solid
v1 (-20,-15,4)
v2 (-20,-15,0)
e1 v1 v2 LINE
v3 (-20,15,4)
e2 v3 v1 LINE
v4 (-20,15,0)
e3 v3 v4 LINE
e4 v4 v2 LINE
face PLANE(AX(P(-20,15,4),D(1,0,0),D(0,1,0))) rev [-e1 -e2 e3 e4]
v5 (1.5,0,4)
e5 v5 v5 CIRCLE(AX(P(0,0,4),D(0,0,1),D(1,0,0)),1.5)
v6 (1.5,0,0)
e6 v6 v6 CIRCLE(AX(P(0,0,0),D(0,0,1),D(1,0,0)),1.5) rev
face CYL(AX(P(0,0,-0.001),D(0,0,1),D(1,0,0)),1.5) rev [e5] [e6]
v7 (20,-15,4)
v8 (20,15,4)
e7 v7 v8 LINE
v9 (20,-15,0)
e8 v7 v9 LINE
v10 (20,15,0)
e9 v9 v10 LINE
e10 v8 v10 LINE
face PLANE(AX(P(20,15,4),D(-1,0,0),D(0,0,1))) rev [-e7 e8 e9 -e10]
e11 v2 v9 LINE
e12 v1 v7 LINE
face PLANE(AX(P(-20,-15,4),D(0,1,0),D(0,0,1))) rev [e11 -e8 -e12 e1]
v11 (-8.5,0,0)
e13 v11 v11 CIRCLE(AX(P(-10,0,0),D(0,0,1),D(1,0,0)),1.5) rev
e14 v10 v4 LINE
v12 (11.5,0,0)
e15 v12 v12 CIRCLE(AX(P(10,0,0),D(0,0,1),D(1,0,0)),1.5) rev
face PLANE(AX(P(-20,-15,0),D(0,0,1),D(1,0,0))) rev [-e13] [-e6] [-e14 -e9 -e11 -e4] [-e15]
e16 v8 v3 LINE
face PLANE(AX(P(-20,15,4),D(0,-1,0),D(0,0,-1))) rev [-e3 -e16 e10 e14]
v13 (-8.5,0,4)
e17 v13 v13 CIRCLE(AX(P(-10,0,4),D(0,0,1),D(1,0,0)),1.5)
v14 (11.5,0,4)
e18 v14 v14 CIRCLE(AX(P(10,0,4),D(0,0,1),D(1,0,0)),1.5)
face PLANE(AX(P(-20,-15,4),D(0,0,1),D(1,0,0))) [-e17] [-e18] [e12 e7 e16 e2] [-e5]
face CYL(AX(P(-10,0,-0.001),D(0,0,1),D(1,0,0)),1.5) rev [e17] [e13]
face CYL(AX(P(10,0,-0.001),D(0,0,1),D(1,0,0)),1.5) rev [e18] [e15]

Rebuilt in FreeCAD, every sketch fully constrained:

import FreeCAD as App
import Part
import Sketcher
from FreeCAD import Vector
Q = App.Units.Quantity

doc = App.newDocument("Part")
body = doc.addObject("PartDesign::Body", "Body")

# Sketch on XY plane
sketch1 = doc.addObject("Sketcher::SketchObject", "Sketch")
body.addObject(sketch1)
sketch1.AttachmentSupport = (doc.XY_Plane, [""])
sketch1.MapMode = "FlatFace"
sketch1.addGeometry(Part.LineSegment(Vector(-20, 15, 0), Vector(-20, -15, 0)), False)
sketch1.addGeometry(Part.LineSegment(Vector(-20, -15, 0), Vector(20, -15, 0)), False)
sketch1.addGeometry(Part.LineSegment(Vector(20, -15, 0), Vector(20, 15, 0)), False)
sketch1.addGeometry(Part.LineSegment(Vector(20, 15, 0), Vector(-20, 15, 0)), False)
sketch1.addConstraint(Sketcher.Constraint("Coincident", 0, 2, 1, 1))
sketch1.addConstraint(Sketcher.Constraint("Coincident", 1, 2, 2, 1))
sketch1.addConstraint(Sketcher.Constraint("Coincident", 2, 2, 3, 1))
sketch1.addConstraint(Sketcher.Constraint("Coincident", 3, 2, 0, 1))
sketch1.addConstraint(Sketcher.Constraint("Vertical", 0))
sketch1.addConstraint(Sketcher.Constraint("Horizontal", 1))
sketch1.addConstraint(Sketcher.Constraint("Vertical", 2))
sketch1.addConstraint(Sketcher.Constraint("Horizontal", 3))
sketch1.addConstraint(Sketcher.Constraint("Symmetric", 0, 2, 2, 2, -1, 1))
sketch1.addConstraint(Sketcher.Constraint("DistanceX", 1, 1, 1, 2, Q("40 mm")))
sketch1.addConstraint(Sketcher.Constraint("DistanceY", 0, 2, 0, 1, Q("30 mm")))
pad1 = doc.addObject("PartDesign::Pad", "Pad")
body.addObject(pad1)
pad1.Profile = sketch1
pad1.Length = 4

# Sketch on XY plane
sketch2 = doc.addObject("Sketcher::SketchObject", "Sketch001")
body.addObject(sketch2)
sketch2.AttachmentSupport = (doc.XY_Plane, [""])
sketch2.MapMode = "FlatFace"
sketch2.AttachmentOffset = App.Placement(Vector(0, 0, 4), App.Rotation())
sketch2.addGeometry(Part.Circle(Vector(0, 0, 0), Vector(0, 0, 1), 1.5), False)
sketch2.addConstraint(Sketcher.Constraint("Coincident", 0, 3, -1, 1))
sketch2.addConstraint(Sketcher.Constraint("Diameter", 0, Q("3 mm")))
pocket1 = doc.addObject("PartDesign::Pocket", "Pocket")
body.addObject(pocket1)
pocket1.Profile = sketch2
pocket1.Type = "UpToFirst"

# Sketch on XY plane
sketch3 = doc.addObject("Sketcher::SketchObject", "Sketch002")
body.addObject(sketch3)
sketch3.AttachmentSupport = (doc.XY_Plane, [""])
sketch3.MapMode = "FlatFace"
sketch3.AttachmentOffset = App.Placement(Vector(0, 0, 4), App.Rotation())
sketch3.addGeometry(Part.Circle(Vector(-10, 0, 0), Vector(0, 0, 1), 1.5), False)
sketch3.addConstraint(Sketcher.Constraint("PointOnObject", 0, 3, -1))
sketch3.addConstraint(Sketcher.Constraint("Diameter", 0, Q("3 mm")))
sketch3.addConstraint(Sketcher.Constraint("DistanceX", 0, 3, -1, 1, Q("10 mm")))
pocket2 = doc.addObject("PartDesign::Pocket", "Pocket001")
body.addObject(pocket2)
pocket2.Profile = sketch3
pocket2.Type = "UpToFirst"

# Sketch on XY plane
sketch4 = doc.addObject("Sketcher::SketchObject", "Sketch003")
body.addObject(sketch4)
sketch4.AttachmentSupport = (doc.XY_Plane, [""])
sketch4.MapMode = "FlatFace"
sketch4.AttachmentOffset = App.Placement(Vector(0, 0, 4), App.Rotation())
sketch4.addGeometry(Part.Circle(Vector(10, 0, 0), Vector(0, 0, 1), 1.5), False)
sketch4.addConstraint(Sketcher.Constraint("PointOnObject", 0, 3, -1))
sketch4.addConstraint(Sketcher.Constraint("Diameter", 0, Q("3 mm")))
sketch4.addConstraint(Sketcher.Constraint("DistanceX", -1, 1, 0, 3, Q("10 mm")))
pocket3 = doc.addObject("PartDesign::Pocket", "Pocket002")
body.addObject(pocket3)
pocket3.Profile = sketch4
pocket3.Type = "UpToFirst"

doc.recompute()
